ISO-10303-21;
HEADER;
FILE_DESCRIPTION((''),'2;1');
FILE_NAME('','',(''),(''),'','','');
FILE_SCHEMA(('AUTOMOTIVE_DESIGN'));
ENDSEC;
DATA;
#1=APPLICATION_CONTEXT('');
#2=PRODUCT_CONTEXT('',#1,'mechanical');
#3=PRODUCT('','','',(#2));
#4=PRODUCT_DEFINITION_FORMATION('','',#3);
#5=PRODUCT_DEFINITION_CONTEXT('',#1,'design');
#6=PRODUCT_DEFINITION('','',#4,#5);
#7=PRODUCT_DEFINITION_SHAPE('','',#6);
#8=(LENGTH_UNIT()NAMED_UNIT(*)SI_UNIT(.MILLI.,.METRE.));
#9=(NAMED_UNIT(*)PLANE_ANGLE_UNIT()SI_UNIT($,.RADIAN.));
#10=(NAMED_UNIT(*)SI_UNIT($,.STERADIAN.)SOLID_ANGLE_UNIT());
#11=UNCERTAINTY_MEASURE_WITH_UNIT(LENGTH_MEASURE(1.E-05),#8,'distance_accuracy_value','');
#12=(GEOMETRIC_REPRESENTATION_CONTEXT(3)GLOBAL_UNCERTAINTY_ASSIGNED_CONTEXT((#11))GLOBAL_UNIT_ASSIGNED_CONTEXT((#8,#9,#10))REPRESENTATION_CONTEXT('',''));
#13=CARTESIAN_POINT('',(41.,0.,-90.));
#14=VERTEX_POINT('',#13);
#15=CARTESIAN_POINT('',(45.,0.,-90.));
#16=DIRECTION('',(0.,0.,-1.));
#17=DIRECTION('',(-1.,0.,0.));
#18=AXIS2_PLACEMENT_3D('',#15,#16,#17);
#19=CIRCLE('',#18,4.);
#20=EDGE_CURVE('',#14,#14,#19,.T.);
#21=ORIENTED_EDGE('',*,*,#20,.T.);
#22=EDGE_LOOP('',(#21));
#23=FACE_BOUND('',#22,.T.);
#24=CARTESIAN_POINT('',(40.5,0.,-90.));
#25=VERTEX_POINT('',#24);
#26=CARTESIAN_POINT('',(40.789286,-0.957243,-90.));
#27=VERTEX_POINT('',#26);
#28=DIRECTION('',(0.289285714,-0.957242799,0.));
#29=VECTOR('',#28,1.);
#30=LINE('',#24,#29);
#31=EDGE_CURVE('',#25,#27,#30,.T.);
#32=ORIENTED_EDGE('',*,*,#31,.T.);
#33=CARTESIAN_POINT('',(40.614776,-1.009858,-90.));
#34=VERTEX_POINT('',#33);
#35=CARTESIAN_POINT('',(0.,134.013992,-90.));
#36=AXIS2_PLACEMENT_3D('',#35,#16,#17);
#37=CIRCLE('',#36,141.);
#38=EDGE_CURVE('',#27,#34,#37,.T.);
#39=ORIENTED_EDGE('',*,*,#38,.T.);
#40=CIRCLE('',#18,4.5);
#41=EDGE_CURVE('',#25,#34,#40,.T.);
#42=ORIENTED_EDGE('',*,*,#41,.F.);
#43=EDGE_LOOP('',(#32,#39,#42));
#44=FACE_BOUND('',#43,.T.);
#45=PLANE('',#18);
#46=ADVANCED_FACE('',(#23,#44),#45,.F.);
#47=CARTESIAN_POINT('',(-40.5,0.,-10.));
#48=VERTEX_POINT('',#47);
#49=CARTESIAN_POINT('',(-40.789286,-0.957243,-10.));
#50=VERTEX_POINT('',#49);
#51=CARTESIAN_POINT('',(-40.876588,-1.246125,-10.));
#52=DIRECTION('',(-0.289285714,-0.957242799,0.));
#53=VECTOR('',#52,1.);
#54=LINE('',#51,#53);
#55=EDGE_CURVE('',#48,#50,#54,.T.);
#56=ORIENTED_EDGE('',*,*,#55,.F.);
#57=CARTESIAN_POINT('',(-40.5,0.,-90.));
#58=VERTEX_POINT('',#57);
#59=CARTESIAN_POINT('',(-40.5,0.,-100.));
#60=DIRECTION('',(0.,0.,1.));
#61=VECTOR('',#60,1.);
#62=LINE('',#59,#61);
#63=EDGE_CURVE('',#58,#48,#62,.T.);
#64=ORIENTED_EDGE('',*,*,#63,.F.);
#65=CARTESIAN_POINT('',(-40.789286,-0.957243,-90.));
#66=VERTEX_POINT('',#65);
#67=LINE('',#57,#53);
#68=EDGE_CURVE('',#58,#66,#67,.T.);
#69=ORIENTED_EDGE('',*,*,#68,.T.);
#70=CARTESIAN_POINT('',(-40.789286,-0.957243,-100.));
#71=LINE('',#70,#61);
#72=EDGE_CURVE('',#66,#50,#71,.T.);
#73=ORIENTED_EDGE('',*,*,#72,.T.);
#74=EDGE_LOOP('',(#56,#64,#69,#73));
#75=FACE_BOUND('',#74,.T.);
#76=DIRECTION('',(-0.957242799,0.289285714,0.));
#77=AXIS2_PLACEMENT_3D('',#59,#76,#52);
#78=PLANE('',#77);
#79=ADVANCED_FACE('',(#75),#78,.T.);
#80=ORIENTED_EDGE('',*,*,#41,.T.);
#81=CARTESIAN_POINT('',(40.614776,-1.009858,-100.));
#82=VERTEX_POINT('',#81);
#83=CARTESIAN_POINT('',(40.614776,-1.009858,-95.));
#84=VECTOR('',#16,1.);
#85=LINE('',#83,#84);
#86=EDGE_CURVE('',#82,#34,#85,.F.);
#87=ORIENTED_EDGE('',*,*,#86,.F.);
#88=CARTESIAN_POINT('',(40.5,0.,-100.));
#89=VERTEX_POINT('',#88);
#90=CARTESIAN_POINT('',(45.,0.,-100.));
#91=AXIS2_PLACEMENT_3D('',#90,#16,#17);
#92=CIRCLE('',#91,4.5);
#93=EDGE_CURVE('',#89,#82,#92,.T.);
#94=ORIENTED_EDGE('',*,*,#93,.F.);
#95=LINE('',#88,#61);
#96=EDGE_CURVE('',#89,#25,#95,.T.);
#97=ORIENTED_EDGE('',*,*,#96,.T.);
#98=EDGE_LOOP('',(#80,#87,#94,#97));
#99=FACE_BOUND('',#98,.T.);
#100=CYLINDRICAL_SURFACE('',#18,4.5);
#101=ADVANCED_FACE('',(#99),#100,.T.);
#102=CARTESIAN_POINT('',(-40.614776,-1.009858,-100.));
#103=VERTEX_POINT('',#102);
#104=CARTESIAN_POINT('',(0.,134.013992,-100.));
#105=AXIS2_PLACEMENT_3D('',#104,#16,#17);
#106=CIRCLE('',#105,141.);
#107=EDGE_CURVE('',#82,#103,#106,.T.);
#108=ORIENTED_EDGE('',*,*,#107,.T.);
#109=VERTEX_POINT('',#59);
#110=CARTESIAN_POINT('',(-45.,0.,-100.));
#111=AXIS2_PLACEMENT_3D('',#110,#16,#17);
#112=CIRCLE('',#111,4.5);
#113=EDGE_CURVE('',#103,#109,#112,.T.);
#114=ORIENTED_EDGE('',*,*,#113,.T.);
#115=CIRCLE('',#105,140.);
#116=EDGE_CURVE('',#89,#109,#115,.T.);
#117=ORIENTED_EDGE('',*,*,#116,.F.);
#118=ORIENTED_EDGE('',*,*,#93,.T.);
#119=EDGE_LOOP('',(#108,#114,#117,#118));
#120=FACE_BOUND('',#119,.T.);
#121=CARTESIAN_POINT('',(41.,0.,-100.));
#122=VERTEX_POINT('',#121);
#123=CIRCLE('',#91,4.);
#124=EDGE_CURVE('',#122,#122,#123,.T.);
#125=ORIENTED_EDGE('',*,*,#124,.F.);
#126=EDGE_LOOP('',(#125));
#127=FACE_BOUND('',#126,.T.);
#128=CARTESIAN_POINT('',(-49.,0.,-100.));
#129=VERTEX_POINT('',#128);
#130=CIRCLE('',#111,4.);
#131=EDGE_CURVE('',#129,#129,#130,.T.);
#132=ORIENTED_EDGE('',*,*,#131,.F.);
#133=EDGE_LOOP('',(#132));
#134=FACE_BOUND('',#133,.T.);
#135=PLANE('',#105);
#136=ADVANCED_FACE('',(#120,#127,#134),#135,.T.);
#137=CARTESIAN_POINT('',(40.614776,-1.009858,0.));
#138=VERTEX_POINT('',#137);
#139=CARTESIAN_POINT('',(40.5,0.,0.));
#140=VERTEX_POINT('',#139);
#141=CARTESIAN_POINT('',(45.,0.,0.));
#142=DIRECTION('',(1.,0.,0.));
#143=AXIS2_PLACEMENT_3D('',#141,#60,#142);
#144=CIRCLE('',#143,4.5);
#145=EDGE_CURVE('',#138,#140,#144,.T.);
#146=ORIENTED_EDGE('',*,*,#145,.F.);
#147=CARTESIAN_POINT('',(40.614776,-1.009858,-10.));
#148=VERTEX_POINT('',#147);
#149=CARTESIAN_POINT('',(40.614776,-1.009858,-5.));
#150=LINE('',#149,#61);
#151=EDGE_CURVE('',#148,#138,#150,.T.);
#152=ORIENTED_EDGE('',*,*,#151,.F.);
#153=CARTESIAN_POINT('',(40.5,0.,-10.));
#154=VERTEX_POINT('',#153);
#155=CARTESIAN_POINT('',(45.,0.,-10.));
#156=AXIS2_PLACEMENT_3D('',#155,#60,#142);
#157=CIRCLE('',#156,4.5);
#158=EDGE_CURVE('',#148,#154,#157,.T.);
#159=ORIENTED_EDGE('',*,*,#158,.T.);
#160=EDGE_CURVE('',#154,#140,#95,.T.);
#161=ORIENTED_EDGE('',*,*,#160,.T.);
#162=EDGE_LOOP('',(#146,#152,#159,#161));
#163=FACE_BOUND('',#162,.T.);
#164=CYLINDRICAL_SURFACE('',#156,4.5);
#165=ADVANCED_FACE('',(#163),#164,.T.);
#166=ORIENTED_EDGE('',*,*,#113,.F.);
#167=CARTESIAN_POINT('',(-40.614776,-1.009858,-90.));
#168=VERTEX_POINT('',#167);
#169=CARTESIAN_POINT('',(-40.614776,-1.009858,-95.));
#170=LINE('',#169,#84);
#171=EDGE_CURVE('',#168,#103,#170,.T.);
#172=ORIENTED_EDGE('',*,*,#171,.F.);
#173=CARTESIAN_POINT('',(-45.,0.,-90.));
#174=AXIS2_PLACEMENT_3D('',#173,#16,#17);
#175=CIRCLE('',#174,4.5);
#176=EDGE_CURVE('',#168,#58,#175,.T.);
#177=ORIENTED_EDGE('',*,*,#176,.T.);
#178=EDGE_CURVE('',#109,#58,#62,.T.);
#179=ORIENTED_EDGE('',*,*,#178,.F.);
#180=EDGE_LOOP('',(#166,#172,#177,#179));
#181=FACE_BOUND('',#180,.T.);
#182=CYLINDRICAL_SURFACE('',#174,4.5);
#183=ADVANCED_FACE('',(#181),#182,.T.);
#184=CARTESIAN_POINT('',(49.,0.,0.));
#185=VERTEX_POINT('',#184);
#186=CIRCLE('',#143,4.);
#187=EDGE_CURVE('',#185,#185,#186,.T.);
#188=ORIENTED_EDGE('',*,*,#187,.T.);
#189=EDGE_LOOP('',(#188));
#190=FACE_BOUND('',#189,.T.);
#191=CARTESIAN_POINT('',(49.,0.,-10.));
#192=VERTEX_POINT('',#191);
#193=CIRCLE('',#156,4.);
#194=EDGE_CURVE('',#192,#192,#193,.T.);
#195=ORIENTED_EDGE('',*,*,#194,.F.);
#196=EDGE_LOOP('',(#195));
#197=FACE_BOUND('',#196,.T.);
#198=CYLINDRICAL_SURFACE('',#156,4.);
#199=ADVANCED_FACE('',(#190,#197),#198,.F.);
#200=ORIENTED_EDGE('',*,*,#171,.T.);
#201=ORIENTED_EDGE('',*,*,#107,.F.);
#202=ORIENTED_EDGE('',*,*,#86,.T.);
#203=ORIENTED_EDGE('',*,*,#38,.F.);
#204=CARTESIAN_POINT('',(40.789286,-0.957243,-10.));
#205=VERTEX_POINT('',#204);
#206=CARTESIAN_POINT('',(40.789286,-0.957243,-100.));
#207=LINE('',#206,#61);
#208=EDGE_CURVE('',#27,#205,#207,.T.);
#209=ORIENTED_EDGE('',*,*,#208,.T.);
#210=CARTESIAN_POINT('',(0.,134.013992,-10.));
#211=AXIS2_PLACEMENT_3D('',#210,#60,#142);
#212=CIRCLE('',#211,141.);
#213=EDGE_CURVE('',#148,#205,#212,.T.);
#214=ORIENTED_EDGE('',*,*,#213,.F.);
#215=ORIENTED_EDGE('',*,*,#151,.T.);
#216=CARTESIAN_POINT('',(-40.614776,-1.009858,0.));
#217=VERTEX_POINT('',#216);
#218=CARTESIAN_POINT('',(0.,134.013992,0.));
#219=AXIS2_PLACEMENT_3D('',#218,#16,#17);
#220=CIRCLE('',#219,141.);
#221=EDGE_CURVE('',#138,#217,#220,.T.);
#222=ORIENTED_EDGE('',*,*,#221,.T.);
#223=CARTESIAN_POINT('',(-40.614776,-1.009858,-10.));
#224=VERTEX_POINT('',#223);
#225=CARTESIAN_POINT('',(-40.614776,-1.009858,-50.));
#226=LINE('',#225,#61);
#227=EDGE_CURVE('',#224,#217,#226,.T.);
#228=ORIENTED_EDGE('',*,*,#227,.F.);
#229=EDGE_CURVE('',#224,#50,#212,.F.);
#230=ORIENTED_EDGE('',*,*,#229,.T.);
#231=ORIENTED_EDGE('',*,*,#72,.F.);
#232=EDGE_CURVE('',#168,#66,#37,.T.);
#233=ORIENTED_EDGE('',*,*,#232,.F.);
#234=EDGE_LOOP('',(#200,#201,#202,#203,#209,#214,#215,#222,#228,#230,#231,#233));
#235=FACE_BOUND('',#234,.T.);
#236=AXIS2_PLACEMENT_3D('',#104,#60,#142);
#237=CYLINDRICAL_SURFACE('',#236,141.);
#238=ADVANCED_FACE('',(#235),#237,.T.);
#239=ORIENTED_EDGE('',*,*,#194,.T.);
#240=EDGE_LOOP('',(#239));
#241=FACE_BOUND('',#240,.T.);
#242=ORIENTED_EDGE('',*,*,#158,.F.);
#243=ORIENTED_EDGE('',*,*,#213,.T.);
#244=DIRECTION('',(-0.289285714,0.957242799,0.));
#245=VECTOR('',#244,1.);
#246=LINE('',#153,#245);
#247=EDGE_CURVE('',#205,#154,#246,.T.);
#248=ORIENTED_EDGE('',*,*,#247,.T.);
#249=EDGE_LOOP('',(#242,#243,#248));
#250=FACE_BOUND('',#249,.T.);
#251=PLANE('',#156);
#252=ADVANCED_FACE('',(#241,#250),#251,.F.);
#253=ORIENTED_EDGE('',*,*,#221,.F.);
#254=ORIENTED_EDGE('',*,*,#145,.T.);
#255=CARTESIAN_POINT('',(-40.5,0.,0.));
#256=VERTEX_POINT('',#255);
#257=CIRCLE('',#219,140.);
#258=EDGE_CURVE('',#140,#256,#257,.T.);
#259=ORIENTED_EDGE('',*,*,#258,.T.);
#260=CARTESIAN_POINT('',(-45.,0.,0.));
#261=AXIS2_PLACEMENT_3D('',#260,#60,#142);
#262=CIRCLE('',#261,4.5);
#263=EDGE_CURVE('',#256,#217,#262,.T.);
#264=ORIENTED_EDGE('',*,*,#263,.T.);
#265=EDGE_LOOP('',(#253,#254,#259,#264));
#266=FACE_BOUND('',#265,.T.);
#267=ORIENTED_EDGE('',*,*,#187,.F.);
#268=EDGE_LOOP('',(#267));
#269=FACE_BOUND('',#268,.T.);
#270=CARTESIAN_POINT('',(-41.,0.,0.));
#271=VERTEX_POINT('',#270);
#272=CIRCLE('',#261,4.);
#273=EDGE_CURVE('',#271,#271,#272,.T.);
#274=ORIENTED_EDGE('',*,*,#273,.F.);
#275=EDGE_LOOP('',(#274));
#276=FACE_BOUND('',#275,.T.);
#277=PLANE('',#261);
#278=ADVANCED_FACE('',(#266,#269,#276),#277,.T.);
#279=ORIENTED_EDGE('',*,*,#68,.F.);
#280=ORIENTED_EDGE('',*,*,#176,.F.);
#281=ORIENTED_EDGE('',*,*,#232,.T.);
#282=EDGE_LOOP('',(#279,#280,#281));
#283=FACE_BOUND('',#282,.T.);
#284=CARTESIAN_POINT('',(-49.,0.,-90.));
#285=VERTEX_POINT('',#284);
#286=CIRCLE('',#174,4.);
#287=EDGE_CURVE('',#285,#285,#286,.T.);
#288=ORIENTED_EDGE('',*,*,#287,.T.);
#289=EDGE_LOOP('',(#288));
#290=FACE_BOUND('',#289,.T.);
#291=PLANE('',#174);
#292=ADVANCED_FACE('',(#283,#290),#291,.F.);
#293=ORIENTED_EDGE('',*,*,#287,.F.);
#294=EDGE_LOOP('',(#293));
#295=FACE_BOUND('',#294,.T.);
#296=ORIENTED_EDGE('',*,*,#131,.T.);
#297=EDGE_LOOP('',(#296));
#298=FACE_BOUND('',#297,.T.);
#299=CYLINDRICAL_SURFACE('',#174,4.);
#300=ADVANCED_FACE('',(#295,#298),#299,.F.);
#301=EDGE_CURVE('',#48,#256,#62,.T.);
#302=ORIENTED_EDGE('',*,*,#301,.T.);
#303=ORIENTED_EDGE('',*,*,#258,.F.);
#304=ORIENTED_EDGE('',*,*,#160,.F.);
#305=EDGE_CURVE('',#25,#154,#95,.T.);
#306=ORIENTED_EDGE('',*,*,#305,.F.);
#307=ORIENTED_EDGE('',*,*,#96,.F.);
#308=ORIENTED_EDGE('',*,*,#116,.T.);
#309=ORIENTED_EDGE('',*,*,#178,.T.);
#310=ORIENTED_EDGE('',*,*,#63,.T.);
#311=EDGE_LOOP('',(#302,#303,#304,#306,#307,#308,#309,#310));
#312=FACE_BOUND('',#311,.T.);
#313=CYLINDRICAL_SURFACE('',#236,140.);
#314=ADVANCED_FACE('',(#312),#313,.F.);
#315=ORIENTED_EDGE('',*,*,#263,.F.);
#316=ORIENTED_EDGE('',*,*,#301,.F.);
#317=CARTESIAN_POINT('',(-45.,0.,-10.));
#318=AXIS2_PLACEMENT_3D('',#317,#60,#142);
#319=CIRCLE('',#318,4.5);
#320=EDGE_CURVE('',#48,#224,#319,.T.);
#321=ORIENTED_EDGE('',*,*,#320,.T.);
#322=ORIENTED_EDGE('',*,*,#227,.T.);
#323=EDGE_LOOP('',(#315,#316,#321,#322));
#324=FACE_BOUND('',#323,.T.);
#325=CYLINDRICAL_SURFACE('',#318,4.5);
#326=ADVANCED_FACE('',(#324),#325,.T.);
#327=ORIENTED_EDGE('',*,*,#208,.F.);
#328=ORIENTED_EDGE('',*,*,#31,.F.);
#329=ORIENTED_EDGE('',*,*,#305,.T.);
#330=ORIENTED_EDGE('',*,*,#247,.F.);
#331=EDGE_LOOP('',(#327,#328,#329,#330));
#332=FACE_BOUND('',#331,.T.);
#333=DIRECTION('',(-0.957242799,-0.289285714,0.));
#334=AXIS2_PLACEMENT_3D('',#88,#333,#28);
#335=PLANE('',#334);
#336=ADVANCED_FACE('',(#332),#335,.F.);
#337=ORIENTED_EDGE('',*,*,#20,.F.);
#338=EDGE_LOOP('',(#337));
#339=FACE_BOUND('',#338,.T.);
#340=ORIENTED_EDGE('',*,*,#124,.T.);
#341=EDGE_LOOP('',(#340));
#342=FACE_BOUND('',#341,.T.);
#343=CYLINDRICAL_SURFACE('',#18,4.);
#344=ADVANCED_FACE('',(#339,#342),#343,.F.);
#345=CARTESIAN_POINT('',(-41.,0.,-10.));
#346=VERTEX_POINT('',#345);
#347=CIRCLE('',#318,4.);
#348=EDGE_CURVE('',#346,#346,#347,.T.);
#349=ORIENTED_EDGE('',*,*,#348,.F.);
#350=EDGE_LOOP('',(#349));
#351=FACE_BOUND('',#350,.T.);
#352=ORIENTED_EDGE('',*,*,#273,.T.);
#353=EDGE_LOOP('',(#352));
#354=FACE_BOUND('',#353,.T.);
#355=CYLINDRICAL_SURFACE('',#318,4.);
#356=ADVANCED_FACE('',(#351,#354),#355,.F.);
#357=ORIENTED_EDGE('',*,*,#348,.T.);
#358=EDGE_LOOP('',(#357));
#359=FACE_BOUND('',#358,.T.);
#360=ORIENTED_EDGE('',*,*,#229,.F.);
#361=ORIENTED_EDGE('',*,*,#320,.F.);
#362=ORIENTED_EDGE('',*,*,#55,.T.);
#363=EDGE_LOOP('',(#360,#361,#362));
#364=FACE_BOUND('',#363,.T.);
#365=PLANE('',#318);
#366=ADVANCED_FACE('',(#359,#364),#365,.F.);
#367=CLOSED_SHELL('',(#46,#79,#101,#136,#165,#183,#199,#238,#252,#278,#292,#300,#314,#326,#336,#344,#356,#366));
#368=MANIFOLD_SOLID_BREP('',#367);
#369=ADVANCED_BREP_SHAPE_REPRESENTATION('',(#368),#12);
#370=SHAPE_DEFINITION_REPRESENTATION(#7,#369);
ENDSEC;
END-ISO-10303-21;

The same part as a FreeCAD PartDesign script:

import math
import FreeCAD as App
import Part
import Sketcher
from FreeCAD import Vector
Q = App.Units.Quantity

doc = App.newDocument("Part")
body = doc.addObject("PartDesign::Body", "Body")

sketch1 = body.newObject("Sketcher::SketchObject", "Sketch")
sketch1.AttachmentSupport = (doc.getObject("XY_Plane"), [""])
sketch1.MapMode = "FlatFace"
sketch1.addGeometry(Part.Circle(Vector(-45, 0, 0), Vector(0, 0, 1), 4.5), False)
sketch1.addGeometry(Part.Circle(Vector(-45, 0, 0), Vector(0, 0, 1), 4), False)
sketch1.addConstraint(Sketcher.Constraint("Coincident", 1, 3, 0, 3))
sketch1.addConstraint(Sketcher.Constraint("PointOnObject", 0, 3, -1))
sketch1.addConstraint(Sketcher.Constraint("Diameter", 0, Q("9 mm")))
sketch1.addConstraint(Sketcher.Constraint("Diameter", 1, Q("8 mm")))
sketch1.addConstraint(Sketcher.Constraint("DistanceX", 0, 3, -1, 1, Q("45 mm")))
pad1 = body.newObject("PartDesign::Pad", "Pad")
pad1.Profile = sketch1
pad1.Length = 10
pad1.Reversed = True
body2 = doc.addObject("PartDesign::Body", "Body001")

sketch2 = body2.newObject("Sketcher::SketchObject", "Sketch001")
sketch2.AttachmentSupport = (doc.getObject("XY_Plane001"), [""])
sketch2.MapMode = "FlatFace"
sketch2.addGeometry(Part.Circle(Vector(45, 0, 0), Vector(0, 0, 1), 4.5), False)
sketch2.addGeometry(Part.Circle(Vector(45, 0, 0), Vector(0, 0, 1), 4), False)
sketch2.addConstraint(Sketcher.Constraint("Coincident", 1, 3, 0, 3))
sketch2.addConstraint(Sketcher.Constraint("PointOnObject", 0, 3, -1))
sketch2.addConstraint(Sketcher.Constraint("Diameter", 0, Q("9 mm")))
sketch2.addConstraint(Sketcher.Constraint("Diameter", 1, Q("8 mm")))
sketch2.addConstraint(Sketcher.Constraint("DistanceX", -1, 1, 0, 3, Q("45 mm")))
pad2 = body2.newObject("PartDesign::Pad", "Pad001")
pad2.Profile = sketch2
pad2.Length = 10
pad2.Reversed = True
body.AllowCompound = True
doc.recompute()

boolean = body.newObject("PartDesign::Boolean", "Boolean")
boolean.Type = "Fuse"
boolean.addObjects([body2])

sketch3 = body.newObject("Sketcher::SketchObject", "Sketch002")
sketch3.AttachmentSupport = (doc.getObject("XY_Plane"), [""])
sketch3.MapMode = "FlatFace"
sketch3.addGeometry(Part.LineSegment(Vector(-40.5, 0, 0), Vector(-40.8, -1, 0)), False)
sketch3.addGeometry(Part.ArcOfCircle(Part.Circle(Vector(0, 134, 0), Vector(0, 0, 1), 141), math.radians(-107), math.radians(-73)), False)
sketch3.addGeometry(Part.LineSegment(Vector(40.8, -1, 0), Vector(40.5, 0, 0)), False)
sketch3.addGeometry(Part.ArcOfCircle(Part.Circle(Vector(0, 134, 0), Vector(0, 0, 1), 140), math.radians(-107), math.radians(-73)), False)
sketch3.addConstraint(Sketcher.Constraint("Coincident", 0, 2, 1, 1))
sketch3.addConstraint(Sketcher.Constraint("Coincident", 1, 2, 2, 1))
sketch3.addConstraint(Sketcher.Constraint("Coincident", 2, 2, 3, 2))
sketch3.addConstraint(Sketcher.Constraint("Coincident", 3, 1, 0, 1))
sketch3.addConstraint(Sketcher.Constraint("Coincident", 3, 3, 1, 3))
sketch3.addConstraint(Sketcher.Constraint("Symmetric", 2, 2, 3, 1, -1, 1))
sketch3.addConstraint(Sketcher.Constraint("Symmetric", 0, 2, 1, 2, -2))
sketch3.addConstraint(Sketcher.Constraint("Radius", 1, Q("141 mm")))
sketch3.addConstraint(Sketcher.Constraint("Radius", 3, Q("140 mm")))
sketch3.addConstraint(Sketcher.Constraint("DistanceX", 3, 1, 2, 2, Q("81 mm")))
sketch3.addConstraint(Sketcher.Constraint("DistanceX", 0, 2, 1, 2, Q("81.578571 mm")))
pad3 = body.newObject("PartDesign::Pad", "Pad002")
pad3.Profile = sketch3
pad3.Length = 100
pad3.Reversed = True

sketch4 = body.newObject("Sketcher::SketchObject", "Sketch003")
sketch4.AttachmentSupport = (doc.getObject("XY_Plane"), [""])
sketch4.MapMode = "FlatFace"
sketch4.AttachmentOffset = App.Placement(Vector(0, 0, -90), App.Rotation())
sketch4.addGeometry(Part.Circle(Vector(-45, 0, 0), Vector(0, 0, 1), 4.5), False)
sketch4.addGeometry(Part.Circle(Vector(-45, 0, 0), Vector(0, 0, 1), 4), False)
sketch4.addGeometry(Part.Circle(Vector(45, 0, 0), Vector(0, 0, 1), 4.5), False)
sketch4.addGeometry(Part.Circle(Vector(45, 0, 0), Vector(0, 0, 1), 4), False)
sketch4.addConstraint(Sketcher.Constraint("Coincident", 1, 3, 0, 3))
sketch4.addConstraint(Sketcher.Constraint("Coincident", 3, 3, 2, 3))
sketch4.addConstraint(Sketcher.Constraint("Equal", 0, 2))
sketch4.addConstraint(Sketcher.Constraint("Equal", 1, 3))
sketch4.addConstraint(Sketcher.Constraint("Symmetric", 0, 3, 2, 3, -1, 1))
sketch4.addConstraint(Sketcher.Constraint("PointOnObject", 0, 3, -1))
sketch4.addConstraint(Sketcher.Constraint("Diameter", 0, Q("9 mm")))
sketch4.addConstraint(Sketcher.Constraint("Diameter", 1, Q("8 mm")))
sketch4.addConstraint(Sketcher.Constraint("DistanceX", 0, 3, -1, 1, Q("45 mm")))
pad4 = body.newObject("PartDesign::Pad", "Pad003")
pad4.Profile = sketch4
pad4.Length = 10
pad4.Reversed = True

doc.recompute()
